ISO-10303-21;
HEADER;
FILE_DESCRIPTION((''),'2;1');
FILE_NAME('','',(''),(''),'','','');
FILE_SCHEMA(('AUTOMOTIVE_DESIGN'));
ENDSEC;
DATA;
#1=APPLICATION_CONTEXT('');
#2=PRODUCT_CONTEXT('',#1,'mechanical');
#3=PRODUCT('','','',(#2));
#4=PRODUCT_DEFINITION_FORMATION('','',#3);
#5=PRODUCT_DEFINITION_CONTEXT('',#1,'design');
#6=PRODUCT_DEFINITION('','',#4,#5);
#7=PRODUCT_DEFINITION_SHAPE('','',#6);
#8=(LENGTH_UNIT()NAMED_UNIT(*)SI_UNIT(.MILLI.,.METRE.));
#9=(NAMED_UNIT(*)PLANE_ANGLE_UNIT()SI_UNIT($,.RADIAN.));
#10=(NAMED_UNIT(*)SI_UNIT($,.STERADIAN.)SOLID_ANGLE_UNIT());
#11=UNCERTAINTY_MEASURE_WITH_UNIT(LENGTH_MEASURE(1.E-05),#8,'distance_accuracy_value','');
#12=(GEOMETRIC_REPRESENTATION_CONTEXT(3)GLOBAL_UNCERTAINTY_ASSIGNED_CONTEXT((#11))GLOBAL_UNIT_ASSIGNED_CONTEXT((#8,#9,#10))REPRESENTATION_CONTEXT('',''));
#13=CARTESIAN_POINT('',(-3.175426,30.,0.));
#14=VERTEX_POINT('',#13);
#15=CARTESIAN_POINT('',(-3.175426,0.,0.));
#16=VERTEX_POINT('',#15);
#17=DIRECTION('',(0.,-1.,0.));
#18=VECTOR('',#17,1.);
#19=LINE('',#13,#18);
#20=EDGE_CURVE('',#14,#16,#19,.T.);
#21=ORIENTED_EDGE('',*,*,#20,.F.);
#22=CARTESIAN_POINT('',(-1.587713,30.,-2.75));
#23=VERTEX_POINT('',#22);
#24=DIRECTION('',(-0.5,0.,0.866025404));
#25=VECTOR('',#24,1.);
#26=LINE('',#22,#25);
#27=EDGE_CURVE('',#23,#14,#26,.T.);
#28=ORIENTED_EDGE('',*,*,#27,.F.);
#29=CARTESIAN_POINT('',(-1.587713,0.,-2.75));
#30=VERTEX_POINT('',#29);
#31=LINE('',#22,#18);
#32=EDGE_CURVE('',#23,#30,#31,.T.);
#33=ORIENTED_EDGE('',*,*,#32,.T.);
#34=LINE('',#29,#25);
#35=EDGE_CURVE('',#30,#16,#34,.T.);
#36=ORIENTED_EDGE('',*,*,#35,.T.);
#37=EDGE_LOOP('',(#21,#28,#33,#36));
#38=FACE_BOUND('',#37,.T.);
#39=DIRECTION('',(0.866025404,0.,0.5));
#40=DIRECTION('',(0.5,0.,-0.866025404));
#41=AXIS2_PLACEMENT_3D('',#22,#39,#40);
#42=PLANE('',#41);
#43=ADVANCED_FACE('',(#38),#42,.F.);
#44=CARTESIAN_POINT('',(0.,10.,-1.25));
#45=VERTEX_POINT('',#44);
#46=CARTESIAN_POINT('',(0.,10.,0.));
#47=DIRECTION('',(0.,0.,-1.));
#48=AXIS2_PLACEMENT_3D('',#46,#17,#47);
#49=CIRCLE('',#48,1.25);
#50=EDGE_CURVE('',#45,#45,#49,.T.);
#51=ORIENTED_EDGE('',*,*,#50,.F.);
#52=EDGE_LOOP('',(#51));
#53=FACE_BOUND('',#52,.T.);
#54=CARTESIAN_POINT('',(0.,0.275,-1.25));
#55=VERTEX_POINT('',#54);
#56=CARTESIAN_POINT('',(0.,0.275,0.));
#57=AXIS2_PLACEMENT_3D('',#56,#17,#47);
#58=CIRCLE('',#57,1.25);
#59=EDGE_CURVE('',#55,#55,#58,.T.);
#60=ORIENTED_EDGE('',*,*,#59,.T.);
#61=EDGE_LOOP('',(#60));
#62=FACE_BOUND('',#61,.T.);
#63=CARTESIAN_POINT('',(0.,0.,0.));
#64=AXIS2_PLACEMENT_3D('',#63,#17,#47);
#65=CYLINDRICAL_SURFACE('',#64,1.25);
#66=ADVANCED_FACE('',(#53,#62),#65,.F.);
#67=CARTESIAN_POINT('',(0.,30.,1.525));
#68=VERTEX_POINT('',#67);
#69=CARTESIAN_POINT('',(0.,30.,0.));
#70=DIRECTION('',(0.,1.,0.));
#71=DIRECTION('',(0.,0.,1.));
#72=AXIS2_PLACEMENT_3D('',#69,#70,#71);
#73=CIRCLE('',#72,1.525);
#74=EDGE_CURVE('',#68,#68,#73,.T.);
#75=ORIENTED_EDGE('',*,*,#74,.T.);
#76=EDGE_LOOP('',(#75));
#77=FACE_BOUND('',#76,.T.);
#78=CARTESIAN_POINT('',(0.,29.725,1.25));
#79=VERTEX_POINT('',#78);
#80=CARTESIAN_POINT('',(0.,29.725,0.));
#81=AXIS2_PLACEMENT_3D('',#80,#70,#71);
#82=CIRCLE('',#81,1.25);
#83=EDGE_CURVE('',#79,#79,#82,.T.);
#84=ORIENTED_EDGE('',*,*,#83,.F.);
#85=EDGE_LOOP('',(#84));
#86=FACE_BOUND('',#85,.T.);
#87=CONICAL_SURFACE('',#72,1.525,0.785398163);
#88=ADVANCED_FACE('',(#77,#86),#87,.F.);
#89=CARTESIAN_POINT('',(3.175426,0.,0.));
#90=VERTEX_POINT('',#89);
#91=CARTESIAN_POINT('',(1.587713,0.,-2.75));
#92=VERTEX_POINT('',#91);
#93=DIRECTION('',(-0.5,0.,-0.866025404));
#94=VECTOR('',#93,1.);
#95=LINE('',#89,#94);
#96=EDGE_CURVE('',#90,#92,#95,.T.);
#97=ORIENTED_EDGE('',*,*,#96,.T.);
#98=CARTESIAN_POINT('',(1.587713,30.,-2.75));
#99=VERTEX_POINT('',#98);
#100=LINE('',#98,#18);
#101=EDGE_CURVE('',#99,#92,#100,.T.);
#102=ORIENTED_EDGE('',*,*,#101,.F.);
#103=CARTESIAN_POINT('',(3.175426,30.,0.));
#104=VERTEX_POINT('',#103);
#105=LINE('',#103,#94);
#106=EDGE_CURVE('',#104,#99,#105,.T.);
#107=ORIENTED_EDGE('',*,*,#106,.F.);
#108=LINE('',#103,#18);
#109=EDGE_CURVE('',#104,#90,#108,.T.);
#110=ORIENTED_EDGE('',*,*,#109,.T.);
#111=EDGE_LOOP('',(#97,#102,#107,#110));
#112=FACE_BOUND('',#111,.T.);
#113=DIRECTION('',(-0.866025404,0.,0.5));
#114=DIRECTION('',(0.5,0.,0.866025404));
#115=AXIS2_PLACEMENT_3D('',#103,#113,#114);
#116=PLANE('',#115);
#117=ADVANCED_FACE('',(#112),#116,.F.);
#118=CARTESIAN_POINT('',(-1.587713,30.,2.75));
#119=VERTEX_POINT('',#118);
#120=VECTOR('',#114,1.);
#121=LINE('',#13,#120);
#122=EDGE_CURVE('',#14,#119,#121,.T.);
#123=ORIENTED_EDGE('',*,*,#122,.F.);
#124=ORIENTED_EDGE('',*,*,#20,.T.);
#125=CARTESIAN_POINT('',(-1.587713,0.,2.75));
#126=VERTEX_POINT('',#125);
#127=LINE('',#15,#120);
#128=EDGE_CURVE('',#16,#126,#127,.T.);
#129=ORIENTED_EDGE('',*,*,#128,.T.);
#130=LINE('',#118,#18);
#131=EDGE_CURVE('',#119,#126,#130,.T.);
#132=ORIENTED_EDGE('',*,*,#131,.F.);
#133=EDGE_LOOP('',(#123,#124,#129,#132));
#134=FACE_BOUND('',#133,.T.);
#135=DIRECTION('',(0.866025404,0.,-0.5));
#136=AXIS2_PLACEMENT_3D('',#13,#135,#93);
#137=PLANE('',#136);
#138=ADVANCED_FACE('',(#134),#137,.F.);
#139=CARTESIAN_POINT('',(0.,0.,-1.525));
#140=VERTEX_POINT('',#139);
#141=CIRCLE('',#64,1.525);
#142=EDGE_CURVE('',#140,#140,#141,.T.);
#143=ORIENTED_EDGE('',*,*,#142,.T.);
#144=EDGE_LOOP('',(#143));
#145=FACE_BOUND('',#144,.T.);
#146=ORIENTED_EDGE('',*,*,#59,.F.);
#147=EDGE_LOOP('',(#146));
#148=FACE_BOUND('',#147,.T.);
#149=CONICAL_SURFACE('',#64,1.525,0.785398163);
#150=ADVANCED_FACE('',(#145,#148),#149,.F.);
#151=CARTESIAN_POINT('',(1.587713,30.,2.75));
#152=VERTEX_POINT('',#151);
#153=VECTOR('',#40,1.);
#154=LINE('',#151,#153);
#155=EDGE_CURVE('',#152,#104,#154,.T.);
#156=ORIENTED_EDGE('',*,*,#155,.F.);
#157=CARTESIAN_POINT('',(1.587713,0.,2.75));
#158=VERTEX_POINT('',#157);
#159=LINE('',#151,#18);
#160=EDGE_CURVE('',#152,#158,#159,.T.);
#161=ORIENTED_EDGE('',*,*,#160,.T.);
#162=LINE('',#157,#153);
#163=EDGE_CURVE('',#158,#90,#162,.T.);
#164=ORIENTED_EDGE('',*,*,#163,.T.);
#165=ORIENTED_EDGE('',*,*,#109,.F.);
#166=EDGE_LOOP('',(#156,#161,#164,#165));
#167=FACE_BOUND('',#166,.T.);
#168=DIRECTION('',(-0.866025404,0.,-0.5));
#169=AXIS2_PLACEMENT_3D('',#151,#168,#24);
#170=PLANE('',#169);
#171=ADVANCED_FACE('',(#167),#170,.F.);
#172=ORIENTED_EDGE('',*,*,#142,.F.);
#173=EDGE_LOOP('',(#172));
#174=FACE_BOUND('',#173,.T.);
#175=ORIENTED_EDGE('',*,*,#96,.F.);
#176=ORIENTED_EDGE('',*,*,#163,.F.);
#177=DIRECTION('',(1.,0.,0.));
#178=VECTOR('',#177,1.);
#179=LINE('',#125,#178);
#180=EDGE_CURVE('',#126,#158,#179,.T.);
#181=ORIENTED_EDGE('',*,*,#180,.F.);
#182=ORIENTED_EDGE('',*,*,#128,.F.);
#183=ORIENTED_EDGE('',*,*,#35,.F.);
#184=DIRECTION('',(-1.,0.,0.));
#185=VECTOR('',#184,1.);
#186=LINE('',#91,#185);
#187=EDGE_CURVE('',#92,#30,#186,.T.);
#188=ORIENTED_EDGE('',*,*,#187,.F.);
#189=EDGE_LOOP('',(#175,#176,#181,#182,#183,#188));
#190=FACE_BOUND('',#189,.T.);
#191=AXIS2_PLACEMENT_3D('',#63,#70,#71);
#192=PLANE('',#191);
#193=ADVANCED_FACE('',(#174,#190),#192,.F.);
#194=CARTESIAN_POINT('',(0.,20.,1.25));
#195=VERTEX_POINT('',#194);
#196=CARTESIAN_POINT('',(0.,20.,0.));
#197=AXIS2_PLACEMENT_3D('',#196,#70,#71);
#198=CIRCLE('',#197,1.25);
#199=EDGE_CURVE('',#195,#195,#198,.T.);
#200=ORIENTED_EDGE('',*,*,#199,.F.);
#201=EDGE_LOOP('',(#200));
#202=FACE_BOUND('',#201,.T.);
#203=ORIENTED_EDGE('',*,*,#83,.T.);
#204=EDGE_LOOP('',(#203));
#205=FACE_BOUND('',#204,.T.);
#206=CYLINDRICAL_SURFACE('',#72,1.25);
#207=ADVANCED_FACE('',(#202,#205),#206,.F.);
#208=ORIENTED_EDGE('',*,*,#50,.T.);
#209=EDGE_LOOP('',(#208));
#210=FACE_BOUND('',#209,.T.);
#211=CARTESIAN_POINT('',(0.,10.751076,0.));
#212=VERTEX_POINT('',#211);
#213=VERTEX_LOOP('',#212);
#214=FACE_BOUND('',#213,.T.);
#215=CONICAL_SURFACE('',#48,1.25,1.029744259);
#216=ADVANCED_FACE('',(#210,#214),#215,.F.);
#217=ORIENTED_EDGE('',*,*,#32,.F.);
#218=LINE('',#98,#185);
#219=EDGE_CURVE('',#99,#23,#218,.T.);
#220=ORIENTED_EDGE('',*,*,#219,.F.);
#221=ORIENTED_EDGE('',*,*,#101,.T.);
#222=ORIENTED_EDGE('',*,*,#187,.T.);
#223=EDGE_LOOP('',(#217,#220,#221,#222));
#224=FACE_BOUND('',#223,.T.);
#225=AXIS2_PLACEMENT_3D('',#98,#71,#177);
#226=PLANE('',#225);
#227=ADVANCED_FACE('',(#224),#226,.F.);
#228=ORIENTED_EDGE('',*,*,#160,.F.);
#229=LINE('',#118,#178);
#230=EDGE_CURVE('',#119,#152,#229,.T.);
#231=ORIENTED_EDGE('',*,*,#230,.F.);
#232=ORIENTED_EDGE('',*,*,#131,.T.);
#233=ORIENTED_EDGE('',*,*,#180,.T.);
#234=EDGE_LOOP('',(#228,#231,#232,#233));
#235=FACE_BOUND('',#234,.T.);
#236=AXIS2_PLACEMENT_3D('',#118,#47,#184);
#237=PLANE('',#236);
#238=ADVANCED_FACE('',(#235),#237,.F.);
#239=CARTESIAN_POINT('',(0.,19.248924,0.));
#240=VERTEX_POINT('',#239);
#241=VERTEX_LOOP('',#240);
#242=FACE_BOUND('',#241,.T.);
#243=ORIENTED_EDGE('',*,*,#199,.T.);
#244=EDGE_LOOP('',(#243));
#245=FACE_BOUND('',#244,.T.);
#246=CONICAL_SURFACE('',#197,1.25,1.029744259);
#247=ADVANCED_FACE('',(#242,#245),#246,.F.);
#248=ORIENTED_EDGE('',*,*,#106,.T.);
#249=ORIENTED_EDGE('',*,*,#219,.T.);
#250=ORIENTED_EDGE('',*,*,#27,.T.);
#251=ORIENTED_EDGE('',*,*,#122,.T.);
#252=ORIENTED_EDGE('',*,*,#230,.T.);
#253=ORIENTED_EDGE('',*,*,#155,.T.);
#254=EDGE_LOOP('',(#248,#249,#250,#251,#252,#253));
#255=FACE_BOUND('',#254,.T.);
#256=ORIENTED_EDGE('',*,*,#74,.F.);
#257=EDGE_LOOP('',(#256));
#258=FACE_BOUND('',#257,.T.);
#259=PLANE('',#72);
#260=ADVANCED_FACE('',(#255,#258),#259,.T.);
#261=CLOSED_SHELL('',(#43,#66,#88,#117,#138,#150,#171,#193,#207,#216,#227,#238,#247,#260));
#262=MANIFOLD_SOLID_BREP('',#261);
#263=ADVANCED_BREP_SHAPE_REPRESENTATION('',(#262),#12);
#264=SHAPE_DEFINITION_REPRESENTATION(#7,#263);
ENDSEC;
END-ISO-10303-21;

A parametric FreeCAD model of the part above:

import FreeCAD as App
import Part
import Sketcher
Q = App.Units.Quantity


def add_polygon(sketch, points):
    """Adds a closed chain of lines whose ends are joined by coincident constraints."""
    first, n = sketch.GeometryCount, len(points)
    for a, b in zip(points, points[1:] + points[:1]):
        sketch.addGeometry(Part.LineSegment(App.Vector(*a, 0), App.Vector(*b, 0)), False)
    for i in range(n):
        sketch.addConstraint(Sketcher.Constraint("Coincident", first + i, 2, first + (i + 1) % n, 1))

doc = App.newDocument("Part")
params = doc.addObject("Spreadsheet::Sheet", "Params")
for row, (alias, value) in enumerate([
    ("pad1_length", "30 mm"),
    ("sketch2_diameter", "2.5 mm"),
    ("hole_diameter", "2.5 mm"),
    ("hole_depth", "10 mm"),
    ("hole_csink_diameter", "3.05 mm"),
    ("sketch3_diameter", "2.5 mm"),
    ("hole2_diameter", "2.5 mm"),
    ("hole2_depth", "10 mm"),
    ("hole2_csink_diameter", "3.05 mm"),
], start=1):
    params.set(f"A{row}", alias)
    params.set(f"B{row}", "=" + value)
    params.setAlias(f"B{row}", alias)

body = doc.addObject("PartDesign::Body", "Body")

sketch1 = body.newObject("Sketcher::SketchObject", "Sketch")
sketch1.AttachmentSupport = (doc.getObject("XZ_Plane"), [""])
sketch1.MapMode = "FlatFace"
add_polygon(sketch1, [(3.2, 0), (1.6, -2.8), (-1.6, -2.8), (-3.2, 0), (-1.6, 2.8), (1.6, 2.8)])
sketch1.addConstraint(Sketcher.Constraint("Horizontal", 1))
sketch1.addConstraint(Sketcher.Constraint("Horizontal", 4))
sketch1.addConstraint(Sketcher.Constraint("Symmetric", 0, 2, 3, 2, -1, 1))
sketch1.addConstraint(Sketcher.Constraint("Symmetric", 2, 2, 5, 2, -1, 1))
sketch1.addConstraint(Sketcher.Constraint("PointOnObject", 2, 2, -1))
sketch1.addConstraint(Sketcher.Constraint("Parallel", 2, 5))
sketch1.addConstraint(Sketcher.Constraint("Vertical", 1, 2, 3, 2))
sketch1.addConstraint(Sketcher.Constraint("Angle", 0, Q("-120 deg")))
sketch1.addConstraint(Sketcher.Constraint("DistanceY", 1, 2, 3, 2, Q("5.5 mm")))
sketch1.addConstraint(Sketcher.Constraint("DistanceX", 1, 2, 1, 1, Q("3.175426 mm")))
pad1 = body.newObject("PartDesign::Pad", "Pad")
pad1.Profile = sketch1
pad1.setExpression("Length", "Params.pad1_length")
pad1.Reversed = True

sketch2 = body.newObject("Sketcher::SketchObject", "Sketch001")
sketch2.AttachmentSupport = (doc.getObject("XZ_Plane"), [""])
sketch2.MapMode = "FlatFace"
sketch2.AttachmentOffset = App.Placement(App.Vector(0, 0, -30), App.Rotation())
sketch2.addGeometry(Part.Circle(App.Vector(0, 0, 0), App.Vector(0, 0, 1), 1.2), False)
sketch2.addConstraint(Sketcher.Constraint("Coincident", 0, 3, -1, 1))
sketch2.addConstraint(Sketcher.Constraint("Diameter", 0, Q("2.5 mm")))
sketch2.setExpression("Constraints[1]", "Params.sketch2_diameter")
doc.recompute()
hole = body.newObject("PartDesign::Hole", "Hole")
hole.Profile = sketch2
hole.ThreadType = "None"
hole.setExpression("Diameter", "Params.hole_diameter")
hole.DepthType = "Dimension"
hole.setExpression("Depth", "Params.hole_depth")
hole.DrillPoint = "Angled"
hole.DrillPointAngle = 118
hole.HoleCutType = "Countersink"
hole.setExpression("HoleCutDiameter", "Params.hole_csink_diameter")
hole.HoleCutCountersinkAngle = 90
hole.Reversed = True

sketch3 = body.newObject("Sketcher::SketchObject", "Sketch002")
sketch3.AttachmentSupport = (doc.getObject("XZ_Plane"), [""])
sketch3.MapMode = "FlatFace"
sketch3.addGeometry(Part.Circle(App.Vector(0, 0, 0), App.Vector(0, 0, 1), 1.2), False)
sketch3.addConstraint(Sketcher.Constraint("Coincident", 0, 3, -1, 1))
sketch3.addConstraint(Sketcher.Constraint("Diameter", 0, Q("2.5 mm")))
sketch3.setExpression("Constraints[1]", "Params.sketch3_diameter")
doc.recompute()
hole2 = body.newObject("PartDesign::Hole", "Hole001")
hole2.Profile = sketch3
hole2.ThreadType = "None"
hole2.setExpression("Diameter", "Params.hole2_diameter")
hole2.DepthType = "Dimension"
hole2.setExpression("Depth", "Params.hole2_depth")
hole2.DrillPoint = "Angled"
hole2.DrillPointAngle = 118
hole2.HoleCutType = "Countersink"
hole2.setExpression("HoleCutDiameter", "Params.hole2_csink_diameter")
hole2.HoleCutCountersinkAngle = 90

doc.recompute()
